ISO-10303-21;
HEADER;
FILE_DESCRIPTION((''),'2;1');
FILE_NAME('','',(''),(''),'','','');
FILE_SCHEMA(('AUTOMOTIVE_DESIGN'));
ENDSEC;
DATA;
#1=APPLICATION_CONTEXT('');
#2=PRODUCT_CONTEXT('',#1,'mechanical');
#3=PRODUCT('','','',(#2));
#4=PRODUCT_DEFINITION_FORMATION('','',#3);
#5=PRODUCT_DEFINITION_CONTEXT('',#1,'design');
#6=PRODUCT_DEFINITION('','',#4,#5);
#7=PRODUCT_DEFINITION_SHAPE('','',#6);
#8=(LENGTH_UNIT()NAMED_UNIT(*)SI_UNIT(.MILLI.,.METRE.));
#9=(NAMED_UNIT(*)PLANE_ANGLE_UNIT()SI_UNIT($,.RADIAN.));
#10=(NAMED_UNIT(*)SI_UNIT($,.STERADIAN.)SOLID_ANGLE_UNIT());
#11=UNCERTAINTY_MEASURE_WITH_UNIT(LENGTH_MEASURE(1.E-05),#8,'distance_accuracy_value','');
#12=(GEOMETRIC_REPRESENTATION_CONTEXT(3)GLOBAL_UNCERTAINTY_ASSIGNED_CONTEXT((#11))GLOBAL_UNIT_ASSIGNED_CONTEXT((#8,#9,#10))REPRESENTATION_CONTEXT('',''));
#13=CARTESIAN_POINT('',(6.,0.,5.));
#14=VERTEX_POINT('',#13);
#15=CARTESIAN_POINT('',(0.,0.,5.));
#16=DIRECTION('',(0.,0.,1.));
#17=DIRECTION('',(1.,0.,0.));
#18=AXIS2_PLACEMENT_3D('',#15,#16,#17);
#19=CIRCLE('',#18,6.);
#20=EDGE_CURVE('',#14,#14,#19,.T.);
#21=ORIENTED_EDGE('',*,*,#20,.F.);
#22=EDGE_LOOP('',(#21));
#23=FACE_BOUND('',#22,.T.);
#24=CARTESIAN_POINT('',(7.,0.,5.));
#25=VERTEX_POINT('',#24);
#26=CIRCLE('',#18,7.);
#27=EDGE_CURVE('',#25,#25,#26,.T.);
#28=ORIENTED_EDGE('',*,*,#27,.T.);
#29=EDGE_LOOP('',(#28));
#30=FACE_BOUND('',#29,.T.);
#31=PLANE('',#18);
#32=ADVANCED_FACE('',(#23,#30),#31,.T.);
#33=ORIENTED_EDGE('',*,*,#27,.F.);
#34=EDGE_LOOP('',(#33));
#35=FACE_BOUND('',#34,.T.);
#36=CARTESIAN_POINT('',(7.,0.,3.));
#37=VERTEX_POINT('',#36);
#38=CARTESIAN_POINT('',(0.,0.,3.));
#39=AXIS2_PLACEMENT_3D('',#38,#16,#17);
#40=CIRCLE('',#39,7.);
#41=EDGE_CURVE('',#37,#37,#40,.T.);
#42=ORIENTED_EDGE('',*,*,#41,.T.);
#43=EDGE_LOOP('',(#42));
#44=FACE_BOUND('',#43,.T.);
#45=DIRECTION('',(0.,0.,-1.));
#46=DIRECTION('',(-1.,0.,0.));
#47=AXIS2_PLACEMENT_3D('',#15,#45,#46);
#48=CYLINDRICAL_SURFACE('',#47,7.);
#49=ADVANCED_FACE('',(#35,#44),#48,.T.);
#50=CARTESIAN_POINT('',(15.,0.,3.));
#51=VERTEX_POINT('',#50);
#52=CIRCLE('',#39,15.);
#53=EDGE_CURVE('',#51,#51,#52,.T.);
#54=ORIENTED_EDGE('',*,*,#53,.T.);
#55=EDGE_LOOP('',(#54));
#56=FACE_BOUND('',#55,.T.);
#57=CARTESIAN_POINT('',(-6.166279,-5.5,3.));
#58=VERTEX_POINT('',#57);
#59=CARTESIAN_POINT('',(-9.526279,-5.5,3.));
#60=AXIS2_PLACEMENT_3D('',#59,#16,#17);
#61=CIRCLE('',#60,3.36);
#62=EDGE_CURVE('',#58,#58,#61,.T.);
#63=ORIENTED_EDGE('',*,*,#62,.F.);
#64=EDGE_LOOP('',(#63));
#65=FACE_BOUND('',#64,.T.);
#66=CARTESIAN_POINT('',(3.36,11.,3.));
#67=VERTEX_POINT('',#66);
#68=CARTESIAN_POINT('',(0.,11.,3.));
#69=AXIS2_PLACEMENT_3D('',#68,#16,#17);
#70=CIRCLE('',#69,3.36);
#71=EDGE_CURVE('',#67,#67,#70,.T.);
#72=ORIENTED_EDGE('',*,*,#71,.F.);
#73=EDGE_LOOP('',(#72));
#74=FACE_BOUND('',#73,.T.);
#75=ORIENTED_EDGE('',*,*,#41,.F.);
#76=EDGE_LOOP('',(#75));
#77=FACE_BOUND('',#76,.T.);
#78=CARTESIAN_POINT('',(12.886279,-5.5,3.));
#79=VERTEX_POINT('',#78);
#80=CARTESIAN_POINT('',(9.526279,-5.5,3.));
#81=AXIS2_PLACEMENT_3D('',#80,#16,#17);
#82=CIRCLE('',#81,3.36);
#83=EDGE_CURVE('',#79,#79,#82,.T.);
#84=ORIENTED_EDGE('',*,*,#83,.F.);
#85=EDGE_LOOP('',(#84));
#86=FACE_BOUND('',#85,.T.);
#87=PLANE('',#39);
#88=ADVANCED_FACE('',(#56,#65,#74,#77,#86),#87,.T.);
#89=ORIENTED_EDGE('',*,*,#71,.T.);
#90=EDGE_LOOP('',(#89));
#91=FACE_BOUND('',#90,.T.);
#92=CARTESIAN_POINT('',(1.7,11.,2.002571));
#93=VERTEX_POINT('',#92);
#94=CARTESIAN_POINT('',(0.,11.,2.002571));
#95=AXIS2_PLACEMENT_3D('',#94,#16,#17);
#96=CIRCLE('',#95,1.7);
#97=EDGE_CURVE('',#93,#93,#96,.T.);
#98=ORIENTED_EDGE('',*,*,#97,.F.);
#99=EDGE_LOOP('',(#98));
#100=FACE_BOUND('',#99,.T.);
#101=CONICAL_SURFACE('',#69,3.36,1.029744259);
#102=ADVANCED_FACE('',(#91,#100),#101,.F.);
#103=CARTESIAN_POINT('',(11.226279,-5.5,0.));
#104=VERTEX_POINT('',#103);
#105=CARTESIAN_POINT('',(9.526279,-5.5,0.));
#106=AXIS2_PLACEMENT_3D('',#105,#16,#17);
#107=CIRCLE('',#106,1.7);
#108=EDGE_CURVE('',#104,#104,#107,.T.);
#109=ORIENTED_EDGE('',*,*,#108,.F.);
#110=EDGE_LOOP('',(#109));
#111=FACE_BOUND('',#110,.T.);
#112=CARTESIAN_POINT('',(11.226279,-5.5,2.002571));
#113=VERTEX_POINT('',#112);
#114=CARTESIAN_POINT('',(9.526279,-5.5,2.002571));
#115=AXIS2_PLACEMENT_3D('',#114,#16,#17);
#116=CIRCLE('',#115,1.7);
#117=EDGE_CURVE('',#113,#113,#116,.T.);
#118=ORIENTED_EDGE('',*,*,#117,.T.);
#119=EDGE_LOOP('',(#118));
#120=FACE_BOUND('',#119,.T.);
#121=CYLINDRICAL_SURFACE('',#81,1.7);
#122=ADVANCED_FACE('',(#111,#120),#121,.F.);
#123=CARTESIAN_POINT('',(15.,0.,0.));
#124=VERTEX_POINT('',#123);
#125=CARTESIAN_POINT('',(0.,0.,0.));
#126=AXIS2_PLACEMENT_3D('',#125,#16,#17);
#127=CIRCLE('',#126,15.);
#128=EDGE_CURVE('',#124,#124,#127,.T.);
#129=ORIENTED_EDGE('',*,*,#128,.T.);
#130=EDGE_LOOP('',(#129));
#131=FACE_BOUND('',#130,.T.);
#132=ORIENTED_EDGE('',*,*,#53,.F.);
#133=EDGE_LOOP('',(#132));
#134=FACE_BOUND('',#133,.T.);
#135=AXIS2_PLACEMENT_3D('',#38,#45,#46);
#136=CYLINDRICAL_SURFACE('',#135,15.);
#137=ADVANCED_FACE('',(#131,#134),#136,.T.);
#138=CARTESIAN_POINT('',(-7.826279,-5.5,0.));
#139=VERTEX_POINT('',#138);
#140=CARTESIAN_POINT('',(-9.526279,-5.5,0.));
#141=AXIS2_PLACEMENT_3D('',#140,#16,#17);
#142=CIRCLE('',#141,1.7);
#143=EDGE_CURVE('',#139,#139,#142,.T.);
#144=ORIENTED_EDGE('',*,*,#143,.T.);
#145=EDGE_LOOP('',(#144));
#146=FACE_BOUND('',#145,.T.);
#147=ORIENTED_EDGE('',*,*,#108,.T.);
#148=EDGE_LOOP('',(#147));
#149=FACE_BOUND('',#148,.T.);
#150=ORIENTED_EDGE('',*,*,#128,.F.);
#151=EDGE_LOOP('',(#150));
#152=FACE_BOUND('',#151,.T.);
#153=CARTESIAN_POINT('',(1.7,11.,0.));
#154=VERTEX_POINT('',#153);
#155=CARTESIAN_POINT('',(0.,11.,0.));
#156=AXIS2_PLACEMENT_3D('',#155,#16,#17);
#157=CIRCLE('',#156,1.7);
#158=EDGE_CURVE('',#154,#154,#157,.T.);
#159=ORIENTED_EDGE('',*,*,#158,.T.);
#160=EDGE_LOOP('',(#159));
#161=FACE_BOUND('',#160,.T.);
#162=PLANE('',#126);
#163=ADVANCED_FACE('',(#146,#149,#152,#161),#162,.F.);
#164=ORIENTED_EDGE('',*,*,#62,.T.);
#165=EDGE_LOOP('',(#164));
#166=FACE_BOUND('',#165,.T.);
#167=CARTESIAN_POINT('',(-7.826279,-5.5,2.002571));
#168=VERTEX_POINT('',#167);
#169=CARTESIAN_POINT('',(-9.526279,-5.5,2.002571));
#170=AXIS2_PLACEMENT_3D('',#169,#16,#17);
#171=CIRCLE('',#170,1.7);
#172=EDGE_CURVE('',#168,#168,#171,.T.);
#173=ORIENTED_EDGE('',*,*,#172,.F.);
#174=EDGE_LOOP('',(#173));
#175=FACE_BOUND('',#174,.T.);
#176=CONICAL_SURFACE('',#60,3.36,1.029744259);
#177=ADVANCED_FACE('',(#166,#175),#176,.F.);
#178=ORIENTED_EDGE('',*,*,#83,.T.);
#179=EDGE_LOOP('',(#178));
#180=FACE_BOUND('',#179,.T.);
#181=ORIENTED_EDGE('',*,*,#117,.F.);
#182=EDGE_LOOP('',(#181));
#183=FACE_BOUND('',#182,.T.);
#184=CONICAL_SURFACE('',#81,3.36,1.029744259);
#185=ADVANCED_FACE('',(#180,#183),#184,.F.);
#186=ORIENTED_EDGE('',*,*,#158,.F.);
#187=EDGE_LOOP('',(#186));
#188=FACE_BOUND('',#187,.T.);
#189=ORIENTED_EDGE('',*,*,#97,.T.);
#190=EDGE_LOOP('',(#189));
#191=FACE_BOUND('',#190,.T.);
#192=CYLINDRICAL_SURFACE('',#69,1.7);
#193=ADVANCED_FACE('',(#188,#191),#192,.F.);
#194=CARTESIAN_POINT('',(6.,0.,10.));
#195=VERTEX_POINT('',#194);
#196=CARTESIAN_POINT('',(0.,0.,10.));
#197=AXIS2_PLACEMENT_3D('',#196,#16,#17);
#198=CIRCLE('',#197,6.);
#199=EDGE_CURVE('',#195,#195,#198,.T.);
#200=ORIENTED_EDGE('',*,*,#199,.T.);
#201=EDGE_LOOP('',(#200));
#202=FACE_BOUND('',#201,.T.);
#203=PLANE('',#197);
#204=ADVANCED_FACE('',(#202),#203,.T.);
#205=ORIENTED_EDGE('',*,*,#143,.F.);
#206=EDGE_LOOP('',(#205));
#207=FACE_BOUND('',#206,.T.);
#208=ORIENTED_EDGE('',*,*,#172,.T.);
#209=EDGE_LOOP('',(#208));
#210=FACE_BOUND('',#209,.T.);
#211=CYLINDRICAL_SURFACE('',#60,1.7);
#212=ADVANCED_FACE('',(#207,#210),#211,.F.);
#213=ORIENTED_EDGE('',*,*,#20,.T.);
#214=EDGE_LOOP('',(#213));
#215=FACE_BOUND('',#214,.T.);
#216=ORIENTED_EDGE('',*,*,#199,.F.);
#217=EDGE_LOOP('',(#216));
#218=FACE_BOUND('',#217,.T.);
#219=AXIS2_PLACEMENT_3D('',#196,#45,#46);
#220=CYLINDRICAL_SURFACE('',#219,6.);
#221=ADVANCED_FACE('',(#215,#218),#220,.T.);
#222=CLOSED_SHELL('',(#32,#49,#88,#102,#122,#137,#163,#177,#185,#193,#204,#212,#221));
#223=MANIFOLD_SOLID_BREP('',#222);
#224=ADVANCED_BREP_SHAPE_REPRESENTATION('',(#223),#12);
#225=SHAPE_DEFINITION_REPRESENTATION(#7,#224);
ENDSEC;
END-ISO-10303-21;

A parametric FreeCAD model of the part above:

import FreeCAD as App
import Part
import Sketcher

V = App.Vector

doc = App.newDocument("Part")
body = doc.addObject("PartDesign::Body", "Body")

sketch1 = body.newObject("Sketcher::SketchObject", "Sketch")
sketch1.AttachmentSupport = (doc.getObject("XY_Plane"), [""])
sketch1.MapMode = "FlatFace"
sketch1.addGeometry(Part.Circle(V(0, 0, 0), V(0, 0, 1), 15), False)
sketch1.addConstraint(Sketcher.Constraint("Coincident", 0, 3, -1, 1))
sketch1.addConstraint(Sketcher.Constraint("Diameter", 0, 30.0))
pad1 = body.newObject("PartDesign::Pad", "Pad")
pad1.Profile = sketch1
pad1.Length = 3

sketch2 = body.newObject("Sketcher::SketchObject", "Sketch001")
sketch2.AttachmentSupport = (doc.getObject("XY_Plane"), [""])
sketch2.MapMode = "FlatFace"
sketch2.AttachmentOffset = App.Placement(V(0, 0, 3), App.Rotation())
sketch2.addGeometry(Part.Circle(V(0, 0, 0), V(0, 0, 1), 6), False)
sketch2.addConstraint(Sketcher.Constraint("Coincident", 0, 3, -1, 1))
sketch2.addConstraint(Sketcher.Constraint("Diameter", 0, 12.0))
pad2 = body.newObject("PartDesign::Pad", "Pad001")
pad2.Profile = sketch2
pad2.Length = 7

sketch3 = body.newObject("Sketcher::SketchObject", "Sketch002")
sketch3.AttachmentSupport = (doc.getObject("XY_Plane"), [""])
sketch3.MapMode = "FlatFace"
sketch3.AttachmentOffset = App.Placement(V(0, 0, 3), App.Rotation())
sketch3.addGeometry(Part.Circle(V(0, 11, 0), V(0, 0, 1), 1.7), False)
sketch3.addGeometry(Part.Circle(V(-9.5, -5.5, 0), V(0, 0, 1), 1.7), False)
sketch3.addGeometry(Part.Circle(V(9.5, -5.5, 0), V(0, 0, 1), 1.7), False)
sketch3.addConstraint(Sketcher.Constraint("Equal", 0, 1))
sketch3.addConstraint(Sketcher.Constraint("Equal", 1, 2))
sketch3.addConstraint(Sketcher.Constraint("Symmetric", 1, 3, 2, 3, -2))
sketch3.addConstraint(Sketcher.Constraint("PointOnObject", 0, 3, -2))
sketch3.addConstraint(Sketcher.Constraint("Diameter", 0, 3.4))
sketch3.addConstraint(Sketcher.Constraint("DistanceY", -1, 1, 0, 3, 11.0))
sketch3.addConstraint(Sketcher.Constraint("DistanceY", 1, 3, -1, 1, 5.5))
sketch3.addConstraint(Sketcher.Constraint("DistanceX", 1, 3, -1, 1, 9.526279))
doc.recompute()
hole = body.newObject("PartDesign::Hole", "Hole")
hole.Profile = sketch3
hole.ThreadType = "None"
hole.Diameter = 3.4
hole.DepthType = "Dimension"
hole.Depth = 14.54
hole.DrillPoint = "Angled"
hole.DrillPointAngle = 118
hole.HoleCutType = "Countersink"
hole.HoleCutDiameter = 6.72
hole.HoleCutCountersinkAngle = 118

sketch4 = body.newObject("Sketcher::SketchObject", "Sketch003")
sketch4.AttachmentSupport = (doc.getObject("XY_Plane"), [""])
sketch4.MapMode = "FlatFace"
sketch4.AttachmentOffset = App.Placement(V(0, 0, 3), App.Rotation())
sketch4.addGeometry(Part.Circle(V(0, 0, 0), V(0, 0, 1), 7), False)
sketch4.addGeometry(Part.Circle(V(0, 0, 0), V(0, 0, 1), 6), False)
sketch4.addConstraint(Sketcher.Constraint("Coincident", 0, 3, -1, 1))
sketch4.addConstraint(Sketcher.Constraint("Coincident", 1, 3, -1, 1))
sketch4.addConstraint(Sketcher.Constraint("Diameter", 0, 14.0))
sketch4.addConstraint(Sketcher.Constraint("Diameter", 1, 12.0))
pad3 = body.newObject("PartDesign::Pad", "Pad002")
pad3.Profile = sketch4
pad3.Length = 2

doc.recompute()
